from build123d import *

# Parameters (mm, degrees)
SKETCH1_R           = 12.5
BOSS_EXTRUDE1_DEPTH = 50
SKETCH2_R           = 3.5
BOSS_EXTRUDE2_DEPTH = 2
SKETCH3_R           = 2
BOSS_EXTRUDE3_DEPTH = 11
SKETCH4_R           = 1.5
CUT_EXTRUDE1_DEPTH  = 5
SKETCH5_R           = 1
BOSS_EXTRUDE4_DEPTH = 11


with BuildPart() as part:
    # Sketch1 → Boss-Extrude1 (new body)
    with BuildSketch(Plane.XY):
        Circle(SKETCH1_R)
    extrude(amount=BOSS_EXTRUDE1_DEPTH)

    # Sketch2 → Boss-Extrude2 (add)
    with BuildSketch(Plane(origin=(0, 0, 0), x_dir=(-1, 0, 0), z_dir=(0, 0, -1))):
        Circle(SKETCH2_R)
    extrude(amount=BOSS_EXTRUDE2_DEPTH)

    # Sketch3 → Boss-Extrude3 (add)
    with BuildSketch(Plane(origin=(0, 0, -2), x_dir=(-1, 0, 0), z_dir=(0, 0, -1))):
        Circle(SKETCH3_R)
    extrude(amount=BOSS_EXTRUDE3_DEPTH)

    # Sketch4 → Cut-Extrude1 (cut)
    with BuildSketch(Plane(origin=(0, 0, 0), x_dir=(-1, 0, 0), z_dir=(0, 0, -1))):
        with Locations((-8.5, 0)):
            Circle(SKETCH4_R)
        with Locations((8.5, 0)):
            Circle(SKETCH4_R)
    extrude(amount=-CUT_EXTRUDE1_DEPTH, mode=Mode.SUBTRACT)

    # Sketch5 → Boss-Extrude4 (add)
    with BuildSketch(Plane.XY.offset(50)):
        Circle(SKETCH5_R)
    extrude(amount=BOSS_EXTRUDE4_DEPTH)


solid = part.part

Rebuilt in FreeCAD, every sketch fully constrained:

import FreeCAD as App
import Part
import Sketcher

doc = App.newDocument("Part")
body = doc.addObject("PartDesign::Body", "Body")

# Sketch on XY plane
sketch1 = body.newObject("Sketcher::SketchObject", "Sketch")
sketch1.AttachmentSupport = (doc.getObject("XY_Plane"), [""])
sketch1.MapMode = "FlatFace"
sketch1.addGeometry(Part.Circle(App.Vector(0, 0, 0), App.Vector(0, 0, 1), 12), False)
sketch1.addConstraint([
    Sketcher.Constraint("Coincident", 0, 3, -1, 1),
    Sketcher.Constraint("Diameter", 0, 25.0),
])
pad1 = body.newObject("PartDesign::Pad", "Pad")
pad1.Profile = sketch1
pad1.Length = 50

# Sketch on XY plane
sketch2 = body.newObject("Sketcher::SketchObject", "Sketch001")
sketch2.AttachmentSupport = (doc.getObject("XY_Plane"), [""])
sketch2.MapMode = "FlatFace"
sketch2.addGeometry(Part.Circle(App.Vector(0, 0, 0), App.Vector(0, 0, 1), 3.5), False)
sketch2.addConstraint([
    Sketcher.Constraint("Coincident", 0, 3, -1, 1),
    Sketcher.Constraint("Diameter", 0, 7.0),
])
pad2 = body.newObject("PartDesign::Pad", "Pad001")
pad2.Profile = sketch2
pad2.Length = 2
pad2.Reversed = True

# Sketch on XY plane
sketch3 = body.newObject("Sketcher::SketchObject", "Sketch002")
sketch3.AttachmentSupport = (doc.getObject("XY_Plane"), [""])
sketch3.MapMode = "FlatFace"
sketch3.AttachmentOffset = App.Placement(App.Vector(0, 0, -2), App.Rotation())
sketch3.addGeometry(Part.Circle(App.Vector(0, 0, 0), App.Vector(0, 0, 1), 2), False)
sketch3.addConstraint([
    Sketcher.Constraint("Coincident", 0, 3, -1, 1),
    Sketcher.Constraint("Diameter", 0, 4.0),
])
pad3 = body.newObject("PartDesign::Pad", "Pad002")
pad3.Profile = sketch3
pad3.Length = 11
pad3.Reversed = True

# Sketch on XY plane
sketch4 = body.newObject("Sketcher::SketchObject", "Sketch003")
sketch4.AttachmentSupport = (doc.getObject("XY_Plane"), [""])
sketch4.MapMode = "FlatFace"
sketch4.addGeometry([
    Part.Circle(App.Vector(8.5, 0, 0), App.Vector(0, 0, 1), 1.5),
    Part.Circle(App.Vector(-8.5, 0, 0), App.Vector(0, 0, 1), 1.5),
], False)
sketch4.addConstraint([
    Sketcher.Constraint("Equal", 0, 1),
    Sketcher.Constraint("Symmetric", 0, 3, 1, 3, -1, 1),
    Sketcher.Constraint("PointOnObject", 0, 3, -1),
    Sketcher.Constraint("Diameter", 0, 3.0),
    Sketcher.Constraint("DistanceX", 1, 3, 0, 3, 17.0),
])
pocket1 = body.newObject("PartDesign::Pocket", "Pocket")
pocket1.Profile = sketch4
pocket1.Length = 5
pocket1.Reversed = True

# Sketch on XY plane
sketch5 = body.newObject("Sketcher::SketchObject", "Sketch004")
sketch5.AttachmentSupport = (doc.getObject("XY_Plane"), [""])
sketch5.MapMode = "FlatFace"
sketch5.AttachmentOffset = App.Placement(App.Vector(0, 0, 50), App.Rotation())
sketch5.addGeometry(Part.Circle(App.Vector(0, 0, 0), App.Vector(0, 0, 1), 1), False)
sketch5.addConstraint([
    Sketcher.Constraint("Coincident", 0, 3, -1, 1),
    Sketcher.Constraint("Diameter", 0, 2.0),
])
pad4 = body.newObject("PartDesign::Pad", "Pad003")
pad4.Profile = sketch5
pad4.Length = 11

doc.recompute()
